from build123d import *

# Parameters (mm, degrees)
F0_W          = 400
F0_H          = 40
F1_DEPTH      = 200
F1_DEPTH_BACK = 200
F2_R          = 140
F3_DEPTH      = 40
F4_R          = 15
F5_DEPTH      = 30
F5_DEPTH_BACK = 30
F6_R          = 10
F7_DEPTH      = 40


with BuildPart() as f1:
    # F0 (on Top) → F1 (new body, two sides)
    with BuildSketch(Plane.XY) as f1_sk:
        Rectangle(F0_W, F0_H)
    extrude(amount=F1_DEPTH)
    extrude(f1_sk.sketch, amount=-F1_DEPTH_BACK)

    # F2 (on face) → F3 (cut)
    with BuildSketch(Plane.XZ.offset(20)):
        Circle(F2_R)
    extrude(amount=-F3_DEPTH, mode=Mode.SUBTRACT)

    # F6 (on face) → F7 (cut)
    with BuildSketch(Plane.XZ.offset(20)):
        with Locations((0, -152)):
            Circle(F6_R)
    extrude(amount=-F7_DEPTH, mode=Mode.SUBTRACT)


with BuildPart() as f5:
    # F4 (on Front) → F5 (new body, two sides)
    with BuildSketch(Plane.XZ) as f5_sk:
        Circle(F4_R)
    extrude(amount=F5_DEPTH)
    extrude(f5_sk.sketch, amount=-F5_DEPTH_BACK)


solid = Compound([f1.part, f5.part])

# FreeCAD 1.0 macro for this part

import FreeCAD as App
import Part
import Sketcher
from FreeCAD import Vector


def add_polygon(sketch, points):
    """Adds a closed chain of lines whose ends are joined by coincident constraints."""
    first, n = sketch.GeometryCount, len(points)
    for a, b in zip(points, points[1:] + points[:1]):
        sketch.addGeometry(Part.LineSegment(App.Vector(*a, 0), App.Vector(*b, 0)), False)
    for i in range(n):
        sketch.addConstraint(Sketcher.Constraint("Coincident", first + i, 2, first + (i + 1) % n, 1))

doc = App.newDocument("Part")
body = doc.addObject("PartDesign::Body", "Body")

# Sketch on XY plane
sketch1 = body.newObject("Sketcher::SketchObject", "Sketch")
sketch1.AttachmentSupport = (doc.getObject("XY_Plane"), [""])
sketch1.MapMode = "FlatFace"
add_polygon(sketch1, [(-200, 20), (-200, -20), (200, -20), (200, 20)])  # lines 0-3
sketch1.addConstraint(Sketcher.Constraint("Vertical", 0))
sketch1.addConstraint(Sketcher.Constraint("Horizontal", 1))
sketch1.addConstraint(Sketcher.Constraint("Vertical", 2))
sketch1.addConstraint(Sketcher.Constraint("Horizontal", 3))
sketch1.addConstraint(Sketcher.Constraint("Symmetric", 0, 2, 2, 2, -1, 1))
sketch1.addConstraint(Sketcher.Constraint("DistanceX", 1, 1, 1, 2, 400.0))
sketch1.addConstraint(Sketcher.Constraint("DistanceY", 0, 2, 0, 1, 40.0))
pad1 = body.newObject("PartDesign::Pad", "Pad")
pad1.Profile = sketch1
pad1.Type = "TwoLengths"
pad1.Length = 200
pad1.Length2 = 200

# Sketch on XZ plane
sketch2 = body.newObject("Sketcher::SketchObject", "Sketch001")
sketch2.AttachmentSupport = (doc.getObject("XZ_Plane"), [""])
sketch2.MapMode = "FlatFace"
sketch2.AttachmentOffset = App.Placement(Vector(0, 0, 20), App.Rotation())
sketch2.addGeometry(Part.Circle(Vector(0, 0, 0), Vector(0, 0, 1), 140), False)
sketch2.addConstraint(Sketcher.Constraint("Coincident", 0, 3, -1, 1))
sketch2.addConstraint(Sketcher.Constraint("Diameter", 0, 280.0))
pocket1 = body.newObject("PartDesign::Pocket", "Pocket")
pocket1.Profile = sketch2
pocket1.Length = 40

# Sketch on XZ plane
sketch3 = body.newObject("Sketcher::SketchObject", "Sketch002")
sketch3.AttachmentSupport = (doc.getObject("XZ_Plane"), [""])
sketch3.MapMode = "FlatFace"
sketch3.AttachmentOffset = App.Placement(Vector(0, 0, 20), App.Rotation())
sketch3.addGeometry(Part.Circle(Vector(0, -152, 0), Vector(0, 0, 1), 10), False)
sketch3.addConstraint(Sketcher.Constraint("PointOnObject", 0, 3, -2))
sketch3.addConstraint(Sketcher.Constraint("Diameter", 0, 20.0))
sketch3.addConstraint(Sketcher.Constraint("DistanceY", 0, 3, -1, 1, 152.0))
pocket2 = body.newObject("PartDesign::Pocket", "Pocket001")
pocket2.Profile = sketch3
pocket2.Length = 40
body2 = doc.addObject("PartDesign::Body", "Body001")

# Sketch on XZ plane
sketch4 = body2.newObject("Sketcher::SketchObject", "Sketch003")
sketch4.AttachmentSupport = (doc.getObject("XZ_Plane001"), [""])
sketch4.MapMode = "FlatFace"
sketch4.addGeometry(Part.Circle(Vector(0, 0, 0), Vector(0, 0, 1), 15), False)
sketch4.addConstraint(Sketcher.Constraint("Coincident", 0, 3, -1, 1))
sketch4.addConstraint(Sketcher.Constraint("Diameter", 0, 30.0))
pad2 = body2.newObject("PartDesign::Pad", "Pad001")
pad2.Profile = sketch4
pad2.Type = "TwoLengths"
pad2.Length = 30
pad2.Length2 = 30

doc.recompute()
